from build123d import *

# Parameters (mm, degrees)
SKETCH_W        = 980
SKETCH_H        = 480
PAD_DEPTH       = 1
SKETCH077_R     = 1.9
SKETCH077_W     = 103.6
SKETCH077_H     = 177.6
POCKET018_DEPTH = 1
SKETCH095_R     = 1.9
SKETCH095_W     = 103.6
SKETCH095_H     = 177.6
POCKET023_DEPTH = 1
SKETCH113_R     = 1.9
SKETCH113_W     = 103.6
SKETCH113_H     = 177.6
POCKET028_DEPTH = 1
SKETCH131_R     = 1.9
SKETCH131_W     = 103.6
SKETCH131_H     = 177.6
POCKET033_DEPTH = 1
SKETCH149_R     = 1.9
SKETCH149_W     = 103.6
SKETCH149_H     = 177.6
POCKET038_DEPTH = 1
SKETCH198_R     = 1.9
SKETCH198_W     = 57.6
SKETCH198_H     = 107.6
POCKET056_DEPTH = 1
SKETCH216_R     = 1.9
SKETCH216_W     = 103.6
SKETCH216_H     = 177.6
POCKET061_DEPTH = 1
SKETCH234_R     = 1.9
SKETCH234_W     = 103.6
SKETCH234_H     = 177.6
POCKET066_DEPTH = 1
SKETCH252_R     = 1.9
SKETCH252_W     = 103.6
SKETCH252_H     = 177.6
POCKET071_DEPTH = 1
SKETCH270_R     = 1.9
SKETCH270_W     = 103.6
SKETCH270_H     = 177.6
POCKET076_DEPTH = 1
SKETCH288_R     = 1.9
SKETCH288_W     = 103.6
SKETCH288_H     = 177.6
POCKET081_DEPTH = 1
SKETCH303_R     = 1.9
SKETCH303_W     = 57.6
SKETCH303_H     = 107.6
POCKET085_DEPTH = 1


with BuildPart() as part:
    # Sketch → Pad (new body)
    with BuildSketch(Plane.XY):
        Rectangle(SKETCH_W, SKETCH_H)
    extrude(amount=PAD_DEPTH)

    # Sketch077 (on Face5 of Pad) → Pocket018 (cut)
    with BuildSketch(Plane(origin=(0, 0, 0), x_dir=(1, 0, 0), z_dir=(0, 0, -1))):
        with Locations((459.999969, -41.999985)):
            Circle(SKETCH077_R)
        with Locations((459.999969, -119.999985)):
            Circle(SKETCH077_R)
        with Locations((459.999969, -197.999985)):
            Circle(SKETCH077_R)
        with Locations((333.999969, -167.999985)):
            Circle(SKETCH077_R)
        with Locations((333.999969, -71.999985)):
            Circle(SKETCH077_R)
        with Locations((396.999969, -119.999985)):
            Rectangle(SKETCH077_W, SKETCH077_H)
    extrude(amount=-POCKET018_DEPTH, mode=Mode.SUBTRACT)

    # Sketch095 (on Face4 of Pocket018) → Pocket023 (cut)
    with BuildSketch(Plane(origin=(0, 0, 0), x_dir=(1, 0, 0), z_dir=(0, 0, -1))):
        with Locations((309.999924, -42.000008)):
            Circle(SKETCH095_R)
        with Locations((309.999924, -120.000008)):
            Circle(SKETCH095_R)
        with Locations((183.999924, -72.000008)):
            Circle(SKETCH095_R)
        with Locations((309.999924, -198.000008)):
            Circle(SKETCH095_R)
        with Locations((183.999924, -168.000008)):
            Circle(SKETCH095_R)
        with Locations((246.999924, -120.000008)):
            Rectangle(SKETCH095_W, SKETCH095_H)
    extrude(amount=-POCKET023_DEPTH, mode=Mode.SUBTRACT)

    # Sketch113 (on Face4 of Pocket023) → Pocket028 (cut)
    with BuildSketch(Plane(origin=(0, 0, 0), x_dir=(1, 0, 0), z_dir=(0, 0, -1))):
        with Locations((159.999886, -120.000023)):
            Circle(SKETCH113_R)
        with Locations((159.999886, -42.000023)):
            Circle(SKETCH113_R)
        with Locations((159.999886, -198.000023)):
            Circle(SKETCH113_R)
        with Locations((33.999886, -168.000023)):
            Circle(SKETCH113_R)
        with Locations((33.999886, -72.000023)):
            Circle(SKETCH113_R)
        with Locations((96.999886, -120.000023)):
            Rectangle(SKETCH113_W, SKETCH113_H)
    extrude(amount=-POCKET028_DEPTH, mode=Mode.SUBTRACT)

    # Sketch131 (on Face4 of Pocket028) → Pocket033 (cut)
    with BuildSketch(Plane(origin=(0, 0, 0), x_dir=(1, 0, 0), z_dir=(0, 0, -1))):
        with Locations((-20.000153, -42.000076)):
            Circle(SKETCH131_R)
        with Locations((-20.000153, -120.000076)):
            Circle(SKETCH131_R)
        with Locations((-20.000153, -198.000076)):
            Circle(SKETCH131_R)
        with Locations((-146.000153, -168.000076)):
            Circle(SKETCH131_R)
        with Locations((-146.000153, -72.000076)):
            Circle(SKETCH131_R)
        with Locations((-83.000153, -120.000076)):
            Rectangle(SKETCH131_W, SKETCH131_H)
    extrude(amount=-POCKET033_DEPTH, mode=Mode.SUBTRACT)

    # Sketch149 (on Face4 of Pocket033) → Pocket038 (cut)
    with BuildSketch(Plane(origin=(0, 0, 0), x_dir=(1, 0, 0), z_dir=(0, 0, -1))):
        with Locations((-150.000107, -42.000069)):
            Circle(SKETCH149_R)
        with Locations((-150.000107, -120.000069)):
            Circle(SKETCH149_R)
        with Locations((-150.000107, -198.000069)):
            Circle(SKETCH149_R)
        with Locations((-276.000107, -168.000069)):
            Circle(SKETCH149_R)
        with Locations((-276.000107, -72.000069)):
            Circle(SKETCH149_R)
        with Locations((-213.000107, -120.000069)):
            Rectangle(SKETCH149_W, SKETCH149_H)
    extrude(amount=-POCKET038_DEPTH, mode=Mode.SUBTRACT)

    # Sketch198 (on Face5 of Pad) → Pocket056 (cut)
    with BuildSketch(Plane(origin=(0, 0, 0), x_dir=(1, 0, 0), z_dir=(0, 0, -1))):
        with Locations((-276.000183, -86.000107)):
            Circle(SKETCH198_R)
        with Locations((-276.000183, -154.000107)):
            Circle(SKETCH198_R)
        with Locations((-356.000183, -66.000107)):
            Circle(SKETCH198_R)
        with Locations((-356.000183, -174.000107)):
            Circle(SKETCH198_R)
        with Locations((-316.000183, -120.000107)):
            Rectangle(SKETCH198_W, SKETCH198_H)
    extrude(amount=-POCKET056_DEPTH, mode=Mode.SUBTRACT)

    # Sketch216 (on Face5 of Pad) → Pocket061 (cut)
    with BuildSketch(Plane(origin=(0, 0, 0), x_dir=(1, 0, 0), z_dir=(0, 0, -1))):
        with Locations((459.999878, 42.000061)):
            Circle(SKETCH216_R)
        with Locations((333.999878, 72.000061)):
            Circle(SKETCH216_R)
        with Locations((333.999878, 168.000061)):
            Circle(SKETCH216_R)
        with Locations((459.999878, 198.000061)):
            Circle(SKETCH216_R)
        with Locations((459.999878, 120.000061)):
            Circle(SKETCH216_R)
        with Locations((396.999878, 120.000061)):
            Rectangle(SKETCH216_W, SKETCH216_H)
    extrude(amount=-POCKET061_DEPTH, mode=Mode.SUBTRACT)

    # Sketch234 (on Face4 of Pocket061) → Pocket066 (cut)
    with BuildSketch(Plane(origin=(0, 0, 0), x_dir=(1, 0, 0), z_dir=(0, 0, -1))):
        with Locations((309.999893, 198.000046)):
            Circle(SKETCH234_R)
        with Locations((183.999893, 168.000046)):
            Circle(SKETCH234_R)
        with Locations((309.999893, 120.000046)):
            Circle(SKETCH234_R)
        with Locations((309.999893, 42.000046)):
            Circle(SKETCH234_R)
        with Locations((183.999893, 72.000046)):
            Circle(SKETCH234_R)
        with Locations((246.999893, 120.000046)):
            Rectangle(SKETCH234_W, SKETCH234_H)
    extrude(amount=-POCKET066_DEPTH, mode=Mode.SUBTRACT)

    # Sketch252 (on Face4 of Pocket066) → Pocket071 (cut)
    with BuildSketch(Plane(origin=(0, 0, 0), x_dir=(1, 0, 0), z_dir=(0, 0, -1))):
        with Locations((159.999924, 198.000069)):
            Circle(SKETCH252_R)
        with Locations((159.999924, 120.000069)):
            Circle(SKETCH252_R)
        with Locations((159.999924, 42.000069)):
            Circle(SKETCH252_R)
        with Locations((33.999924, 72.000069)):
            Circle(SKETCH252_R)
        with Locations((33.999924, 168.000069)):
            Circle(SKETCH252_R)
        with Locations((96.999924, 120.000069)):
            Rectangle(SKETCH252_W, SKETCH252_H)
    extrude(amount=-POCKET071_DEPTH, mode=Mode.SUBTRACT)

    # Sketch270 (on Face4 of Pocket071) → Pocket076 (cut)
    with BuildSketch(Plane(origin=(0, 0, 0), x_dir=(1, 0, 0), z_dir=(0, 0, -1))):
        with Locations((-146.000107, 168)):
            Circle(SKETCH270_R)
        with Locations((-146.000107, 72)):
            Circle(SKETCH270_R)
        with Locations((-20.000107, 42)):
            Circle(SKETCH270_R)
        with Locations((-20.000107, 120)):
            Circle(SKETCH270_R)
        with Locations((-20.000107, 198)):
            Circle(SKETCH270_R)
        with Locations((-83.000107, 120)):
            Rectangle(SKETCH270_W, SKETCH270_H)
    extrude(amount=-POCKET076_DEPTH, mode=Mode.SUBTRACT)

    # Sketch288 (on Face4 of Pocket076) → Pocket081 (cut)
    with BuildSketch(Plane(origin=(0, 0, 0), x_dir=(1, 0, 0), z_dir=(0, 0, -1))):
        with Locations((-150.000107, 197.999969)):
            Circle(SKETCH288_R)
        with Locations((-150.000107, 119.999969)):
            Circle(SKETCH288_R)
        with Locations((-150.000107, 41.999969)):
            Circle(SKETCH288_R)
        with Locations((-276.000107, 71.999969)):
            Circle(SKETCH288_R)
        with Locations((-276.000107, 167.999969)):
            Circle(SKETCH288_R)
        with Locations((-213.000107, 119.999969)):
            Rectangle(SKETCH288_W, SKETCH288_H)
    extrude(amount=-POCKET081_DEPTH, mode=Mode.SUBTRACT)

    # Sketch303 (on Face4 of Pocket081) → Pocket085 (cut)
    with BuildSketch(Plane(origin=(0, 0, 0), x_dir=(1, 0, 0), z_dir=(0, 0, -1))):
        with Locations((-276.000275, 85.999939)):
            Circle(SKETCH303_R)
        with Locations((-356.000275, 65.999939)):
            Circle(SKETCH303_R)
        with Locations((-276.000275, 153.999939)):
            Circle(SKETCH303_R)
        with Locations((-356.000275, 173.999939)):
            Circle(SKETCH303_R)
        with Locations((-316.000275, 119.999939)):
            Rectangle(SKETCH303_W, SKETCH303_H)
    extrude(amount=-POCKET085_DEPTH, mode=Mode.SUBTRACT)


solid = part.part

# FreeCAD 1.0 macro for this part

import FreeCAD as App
import Part
import Sketcher
from FreeCAD import Vector
Q = App.Units.Quantity

doc = App.newDocument("Part")
params = doc.addObject("Spreadsheet::Sheet", "Params")
for row, (alias, value) in enumerate([
    ("sketch1_width", "980 mm"),
    ("sketch1_height", "480 mm"),
    ("pad1_length", "1 mm"),
    ("sketch2_diameter", "3.8 mm"),
    ("sketch2_width", "103.6 mm"),
    ("sketch2_height", "177.6 mm"),
    ("pocket1_length", "1 mm"),
    ("sketch3_diameter", "3.8 mm"),
    ("sketch3_width", "103.6 mm"),
    ("sketch3_height", "177.6 mm"),
    ("pocket2_length", "1 mm"),
    ("sketch4_diameter", "3.8 mm"),
    ("sketch4_width", "103.6 mm"),
    ("sketch4_height", "177.6 mm"),
    ("pocket3_length", "1 mm"),
    ("sketch5_diameter", "3.8 mm"),
    ("sketch5_width", "103.6 mm"),
    ("sketch5_height", "177.6 mm"),
    ("pocket4_length", "1 mm"),
    ("sketch6_diameter", "3.8 mm"),
    ("sketch6_width", "103.6 mm"),
    ("sketch6_height", "177.6 mm"),
    ("pocket5_length", "1 mm"),
    ("sketch7_diameter", "3.8 mm"),
    ("sketch7_width", "57.6 mm"),
    ("sketch7_height", "107.6 mm"),
    ("pocket6_length", "1 mm"),
    ("sketch8_diameter", "3.8 mm"),
    ("sketch8_width", "103.6 mm"),
    ("sketch8_height", "177.6 mm"),
    ("pocket7_length", "1 mm"),
    ("sketch9_diameter", "3.8 mm"),
    ("sketch9_width", "103.6 mm"),
    ("sketch9_height", "177.6 mm"),
    ("pocket8_length", "1 mm"),
    ("sketch10_diameter", "3.8 mm"),
    ("sketch10_width", "103.6 mm"),
    ("sketch10_height", "177.6 mm"),
    ("pocket9_length", "1 mm"),
    ("sketch11_diameter", "3.8 mm"),
    ("sketch11_width", "103.6 mm"),
    ("sketch11_height", "177.6 mm"),
    ("pocket10_length", "1 mm"),
    ("sketch12_diameter", "3.8 mm"),
    ("sketch12_width", "103.6 mm"),
    ("sketch12_height", "177.6 mm"),
    ("pocket11_length", "1 mm"),
    ("sketch13_diameter", "3.8 mm"),
    ("sketch13_width", "57.6 mm"),
    ("sketch13_height", "107.6 mm"),
    ("pocket12_length", "1 mm"),
], start=1):
    params.set(f"A{row}", alias)
    params.set(f"B{row}", "=" + value)
    params.setAlias(f"B{row}", alias)

body = doc.addObject("PartDesign::Body", "Body")

sketch1 = body.newObject("Sketcher::SketchObject", "Sketch")
sketch1.AttachmentSupport = (doc.getObject("XY_Plane"), [""])
sketch1.MapMode = "FlatFace"
sketch1.addGeometry(Part.LineSegment(Vector(-490, 240, 0), Vector(-490, -240, 0)), False)
sketch1.addGeometry(Part.LineSegment(Vector(-490, -240, 0), Vector(490, -240, 0)), False)
sketch1.addGeometry(Part.LineSegment(Vector(490, -240, 0), Vector(490, 240, 0)), False)
sketch1.addGeometry(Part.LineSegment(Vector(490, 240, 0), Vector(-490, 240, 0)), False)
sketch1.addConstraint(Sketcher.Constraint("Coincident", 0, 2, 1, 1))
sketch1.addConstraint(Sketcher.Constraint("Coincident", 1, 2, 2, 1))
sketch1.addConstraint(Sketcher.Constraint("Coincident", 2, 2, 3, 1))
sketch1.addConstraint(Sketcher.Constraint("Coincident", 3, 2, 0, 1))
sketch1.addConstraint(Sketcher.Constraint("Vertical", 0))
sketch1.addConstraint(Sketcher.Constraint("Horizontal", 1))
sketch1.addConstraint(Sketcher.Constraint("Vertical", 2))
sketch1.addConstraint(Sketcher.Constraint("Horizontal", 3))
sketch1.addConstraint(Sketcher.Constraint("Symmetric", 0, 2, 2, 2, -1, 1))
sketch1.addConstraint(Sketcher.Constraint("DistanceX", 1, 1, 1, 2, Q("980 mm")))
sketch1.addConstraint(Sketcher.Constraint("DistanceY", 0, 2, 0, 1, Q("480 mm")))
sketch1.setExpression("Constraints[9]", "Params.sketch1_width")
sketch1.setExpression("Constraints[10]", "Params.sketch1_height")
pad1 = body.newObject("PartDesign::Pad", "Pad")
pad1.Profile = sketch1
pad1.setExpression("Length", "Params.pad1_length")

sketch2 = body.newObject("Sketcher::SketchObject", "Sketch001")
sketch2.AttachmentSupport = (doc.getObject("XY_Plane"), [""])
sketch2.MapMode = "FlatFace"
sketch2.addGeometry(Part.Circle(Vector(459.999969, 41.999985, 0), Vector(0, 0, 1), 1.9), False)
sketch2.addGeometry(Part.Circle(Vector(459.999969, 119.999985, 0), Vector(0, 0, 1), 1.9), False)
sketch2.addGeometry(Part.Circle(Vector(459.999969, 197.999985, 0), Vector(0, 0, 1), 1.9), False)
sketch2.addGeometry(Part.Circle(Vector(333.999969, 167.999985, 0), Vector(0, 0, 1), 1.9), False)
sketch2.addGeometry(Part.Circle(Vector(333.999969, 71.999985, 0), Vector(0, 0, 1), 1.9), False)
sketch2.addGeometry(Part.LineSegment(Vector(345.199969, 31.199985, 0), Vector(345.199969, 208.799985, 0)), False)
sketch2.addGeometry(Part.LineSegment(Vector(345.199969, 208.799985, 0), Vector(448.799969, 208.799985, 0)), False)
sketch2.addGeometry(Part.LineSegment(Vector(448.799969, 208.799985, 0), Vector(448.799969, 31.199985, 0)), False)
sketch2.addGeometry(Part.LineSegment(Vector(448.799969, 31.199985, 0), Vector(345.199969, 31.199985, 0)), False)
sketch2.addConstraint(Sketcher.Constraint("Coincident", 5, 2, 6, 1))
sketch2.addConstraint(Sketcher.Constraint("Coincident", 6, 2, 7, 1))
sketch2.addConstraint(Sketcher.Constraint("Coincident", 7, 2, 8, 1))
sketch2.addConstraint(Sketcher.Constraint("Coincident", 8, 2, 5, 1))
sketch2.addConstraint(Sketcher.Constraint("Vertical", 5))
sketch2.addConstraint(Sketcher.Constraint("Horizontal", 6))
sketch2.addConstraint(Sketcher.Constraint("Vertical", 7))
sketch2.addConstraint(Sketcher.Constraint("Horizontal", 8))
sketch2.addConstraint(Sketcher.Constraint("Equal", 0, 1))
sketch2.addConstraint(Sketcher.Constraint("Equal", 1, 2))
sketch2.addConstraint(Sketcher.Constraint("Equal", 2, 3))
sketch2.addConstraint(Sketcher.Constraint("Equal", 3, 4))
sketch2.addConstraint(Sketcher.Constraint("Vertical", 0, 3, 1, 3))
sketch2.addConstraint(Sketcher.Constraint("Vertical", 1, 3, 2, 3))
sketch2.addConstraint(Sketcher.Constraint("Vertical", 3, 3, 4, 3))
sketch2.addConstraint(Sketcher.Constraint("Diameter", 0, Q("3.8 mm")))
sketch2.addConstraint(Sketcher.Constraint("DistanceX", 6, 1, 6, 2, Q("103.6 mm")))
sketch2.addConstraint(Sketcher.Constraint("DistanceY", 5, 1, 5, 2, Q("177.6 mm")))
sketch2.addConstraint(Sketcher.Constraint("DistanceY", 0, 3, 1, 3, Q("78 mm")))
sketch2.addConstraint(Sketcher.Constraint("DistanceY", 1, 3, 2, 3, Q("78 mm")))
sketch2.addConstraint(Sketcher.Constraint("DistanceX", 3, 3, 2, 3, Q("126 mm")))
sketch2.addConstraint(Sketcher.Constraint("DistanceY", 3, 3, 2, 3, Q("30 mm")))
sketch2.addConstraint(Sketcher.Constraint("DistanceY", 4, 3, 3, 3, Q("96 mm")))
sketch2.addConstraint(Sketcher.Constraint("DistanceX", 3, 3, 5, 2, Q("11.2 mm")))
sketch2.addConstraint(Sketcher.Constraint("DistanceY", 3, 3, 5, 2, Q("40.8 mm")))
sketch2.addConstraint(Sketcher.Constraint("DistanceX", -1, 1, 0, 3, Q("459.999969 mm")))
sketch2.addConstraint(Sketcher.Constraint("DistanceY", -1, 1, 0, 3, Q("41.999985 mm")))
sketch2.setExpression("Constraints[15]", "Params.sketch2_diameter")
sketch2.setExpression("Constraints[16]", "Params.sketch2_width")
sketch2.setExpression("Constraints[17]", "Params.sketch2_height")
pocket1 = body.newObject("PartDesign::Pocket", "Pocket")
pocket1.Profile = sketch2
pocket1.setExpression("Length", "Params.pocket1_length")
pocket1.Reversed = True

sketch3 = body.newObject("Sketcher::SketchObject", "Sketch002")
sketch3.AttachmentSupport = (doc.getObject("XY_Plane"), [""])
sketch3.MapMode = "FlatFace"
sketch3.addGeometry(Part.Circle(Vector(309.999924, 42.000008, 0), Vector(0, 0, 1), 1.9), False)
sketch3.addGeometry(Part.Circle(Vector(309.999924, 120.000008, 0), Vector(0, 0, 1), 1.9), False)
sketch3.addGeometry(Part.Circle(Vector(183.999924, 72.000008, 0), Vector(0, 0, 1), 1.9), False)
sketch3.addGeometry(Part.Circle(Vector(309.999924, 198.000008, 0), Vector(0, 0, 1), 1.9), False)
sketch3.addGeometry(Part.Circle(Vector(183.999924, 168.000008, 0), Vector(0, 0, 1), 1.9), False)
sketch3.addGeometry(Part.LineSegment(Vector(195.199924, 31.200008, 0), Vector(195.199924, 208.800008, 0)), False)
sketch3.addGeometry(Part.LineSegment(Vector(195.199924, 208.800008, 0), Vector(298.799924, 208.800008, 0)), False)
sketch3.addGeometry(Part.LineSegment(Vector(298.799924, 208.800008, 0), Vector(298.799924, 31.200008, 0)), False)
sketch3.addGeometry(Part.LineSegment(Vector(298.799924, 31.200008, 0), Vector(195.199924, 31.200008, 0)), False)
sketch3.addConstraint(Sketcher.Constraint("Coincident", 5, 2, 6, 1))
sketch3.addConstraint(Sketcher.Constraint("Coincident", 6, 2, 7, 1))
sketch3.addConstraint(Sketcher.Constraint("Coincident", 7, 2, 8, 1))
sketch3.addConstraint(Sketcher.Constraint("Coincident", 8, 2, 5, 1))
sketch3.addConstraint(Sketcher.Constraint("Vertical", 5))
sketch3.addConstraint(Sketcher.Constraint("Horizontal", 6))
sketch3.addConstraint(Sketcher.Constraint("Vertical", 7))
sketch3.addConstraint(Sketcher.Constraint("Horizontal", 8))
sketch3.addConstraint(Sketcher.Constraint("Equal", 0, 1))
sketch3.addConstraint(Sketcher.Constraint("Equal", 1, 2))
sketch3.addConstraint(Sketcher.Constraint("Equal", 2, 3))
sketch3.addConstraint(Sketcher.Constraint("Equal", 3, 4))
sketch3.addConstraint(Sketcher.Constraint("Vertical", 0, 3, 1, 3))
sketch3.addConstraint(Sketcher.Constraint("Vertical", 1, 3, 3, 3))
sketch3.addConstraint(Sketcher.Constraint("Vertical", 2, 3, 4, 3))
sketch3.addConstraint(Sketcher.Constraint("Diameter", 0, Q("3.8 mm")))
sketch3.addConstraint(Sketcher.Constraint("DistanceX", 6, 1, 6, 2, Q("103.6 mm")))
sketch3.addConstraint(Sketcher.Constraint("DistanceY", 5, 1, 5, 2, Q("177.6 mm")))
sketch3.addConstraint(Sketcher.Constraint("DistanceY", 0, 3, 1, 3, Q("78 mm")))
sketch3.addConstraint(Sketcher.Constraint("DistanceX", 2, 3, 0, 3, Q("126 mm")))
sketch3.addConstraint(Sketcher.Constraint("DistanceY", 0, 3, 2, 3, Q("30 mm")))
sketch3.addConstraint(Sketcher.Constraint("DistanceY", 1, 3, 3, 3, Q("78 mm")))
sketch3.addConstraint(Sketcher.Constraint("DistanceY", 2, 3, 4, 3, Q("96 mm")))
sketch3.addConstraint(Sketcher.Constraint("DistanceX", 4, 3, 5, 2, Q("11.2 mm")))
sketch3.addConstraint(Sketcher.Constraint("DistanceY", 4, 3, 5, 2, Q("40.8 mm")))
sketch3.addConstraint(Sketcher.Constraint("DistanceY", -1, 1, 3, 3, Q("198.000008 mm")))
sketch3.addConstraint(Sketcher.Constraint("DistanceX", -1, 1, 0, 3, Q("309.999924 mm")))
sketch3.setExpression("Constraints[15]", "Params.sketch3_diameter")
sketch3.setExpression("Constraints[16]", "Params.sketch3_width")
sketch3.setExpression("Constraints[17]", "Params.sketch3_height")
pocket2 = body.newObject("PartDesign::Pocket", "Pocket001")
pocket2.Profile = sketch3
pocket2.setExpression("Length", "Params.pocket2_length")
pocket2.Reversed = True

sketch4 = body.newObject("Sketcher::SketchObject", "Sketch003")
sketch4.AttachmentSupport = (doc.getObject("XY_Plane"), [""])
sketch4.MapMode = "FlatFace"
sketch4.addGeometry(Part.Circle(Vector(159.999886, 120.000023, 0), Vector(0, 0, 1), 1.9), False)
sketch4.addGeometry(Part.Circle(Vector(159.999886, 42.000023, 0), Vector(0, 0, 1), 1.9), False)
sketch4.addGeometry(Part.Circle(Vector(159.999886, 198.000023, 0), Vector(0, 0, 1), 1.9), False)
sketch4.addGeometry(Part.Circle(Vector(33.999886, 168.000023, 0), Vector(0, 0, 1), 1.9), False)
sketch4.addGeometry(Part.Circle(Vector(33.999886, 72.000023, 0), Vector(0, 0, 1), 1.9), False)
sketch4.addGeometry(Part.LineSegment(Vector(45.199886, 31.200023, 0), Vector(45.199886, 208.800023, 0)), False)
sketch4.addGeometry(Part.LineSegment(Vector(45.199886, 208.800023, 0), Vector(148.799886, 208.800023, 0)), False)
sketch4.addGeometry(Part.LineSegment(Vector(148.799886, 208.800023, 0), Vector(148.799886, 31.200023, 0)), False)
sketch4.addGeometry(Part.LineSegment(Vector(148.799886, 31.200023, 0), Vector(45.199886, 31.200023, 0)), False)
sketch4.addConstraint(Sketcher.Constraint("Coincident", 5, 2, 6, 1))
sketch4.addConstraint(Sketcher.Constraint("Coincident", 6, 2, 7, 1))
sketch4.addConstraint(Sketcher.Constraint("Coincident", 7, 2, 8, 1))
sketch4.addConstraint(Sketcher.Constraint("Coincident", 8, 2, 5, 1))
sketch4.addConstraint(Sketcher.Constraint("Vertical", 5))
sketch4.addConstraint(Sketcher.Constraint("Horizontal", 6))
sketch4.addConstraint(Sketcher.Constraint("Vertical", 7))
sketch4.addConstraint(Sketcher.Constraint("Horizontal", 8))
sketch4.addConstraint(Sketcher.Constraint("Equal", 0, 1))
sketch4.addConstraint(Sketcher.Constraint("Equal", 1, 2))
sketch4.addConstraint(Sketcher.Constraint("Equal", 2, 3))
sketch4.addConstraint(Sketcher.Constraint("Equal", 3, 4))
sketch4.addConstraint(Sketcher.Constraint("Vertical", 0, 3, 1, 3))
sketch4.addConstraint(Sketcher.Constraint("Vertical", 1, 3, 2, 3))
sketch4.addConstraint(Sketcher.Constraint("Vertical", 3, 3, 4, 3))
sketch4.addConstraint(Sketcher.Constraint("Diameter", 0, Q("3.8 mm")))
sketch4.addConstraint(Sketcher.Constraint("DistanceX", 6, 1, 6, 2, Q("103.6 mm")))
sketch4.addConstraint(Sketcher.Constraint("DistanceY", 5, 1, 5, 2, Q("177.6 mm")))
sketch4.addConstraint(Sketcher.Constraint("DistanceY", 1, 3, 0, 3, Q("78 mm")))
sketch4.addConstraint(Sketcher.Constraint("DistanceY", 0, 3, 2, 3, Q("78 mm")))
sketch4.addConstraint(Sketcher.Constraint("DistanceX", 3, 3, 2, 3, Q("126 mm")))
sketch4.addConstraint(Sketcher.Constraint("DistanceY", 3, 3, 2, 3, Q("30 mm")))
sketch4.addConstraint(Sketcher.Constraint("DistanceY", 4, 3, 3, 3, Q("96 mm")))
sketch4.addConstraint(Sketcher.Constraint("DistanceX", 3, 3, 5, 2, Q("11.2 mm")))
sketch4.addConstraint(Sketcher.Constraint("DistanceY", 3, 3, 5, 2, Q("40.8 mm")))
sketch4.addConstraint(Sketcher.Constraint("DistanceX", -1, 1, 0, 3, Q("159.999886 mm")))
sketch4.addConstraint(Sketcher.Constraint("DistanceY", -1, 1, 0, 3, Q("120.000023 mm")))
sketch4.setExpression("Constraints[15]", "Params.sketch4_diameter")
sketch4.setExpression("Constraints[16]", "Params.sketch4_width")
sketch4.setExpression("Constraints[17]", "Params.sketch4_height")
pocket3 = body.newObject("PartDesign::Pocket", "Pocket002")
pocket3.Profile = sketch4
pocket3.setExpression("Length", "Params.pocket3_length")
pocket3.Reversed = True

sketch5 = body.newObject("Sketcher::SketchObject", "Sketch004")
sketch5.AttachmentSupport = (doc.getObject("XY_Plane"), [""])
sketch5.MapMode = "FlatFace"
sketch5.addGeometry(Part.Circle(Vector(-20, 42, 0), Vector(0, 0, 1), 1.9), False)
sketch5.addGeometry(Part.Circle(Vector(-20, 120, 0), Vector(0, 0, 1), 1.9), False)
sketch5.addGeometry(Part.Circle(Vector(-20, 198, 0), Vector(0, 0, 1), 1.9), False)
sketch5.addGeometry(Part.Circle(Vector(-146, 168, 0), Vector(0, 0, 1), 1.9), False)
sketch5.addGeometry(Part.Circle(Vector(-146, 72, 0), Vector(0, 0, 1), 1.9), False)
sketch5.addGeometry(Part.LineSegment(Vector(-134.8, 31.2, 0), Vector(-134.8, 208.8, 0)), False)
sketch5.addGeometry(Part.LineSegment(Vector(-134.8, 208.8, 0), Vector(-31.2, 208.8, 0)), False)
sketch5.addGeometry(Part.LineSegment(Vector(-31.2, 208.8, 0), Vector(-31.2, 31.2, 0)), False)
sketch5.addGeometry(Part.LineSegment(Vector(-31.2, 31.2, 0), Vector(-134.8, 31.2, 0)), False)
sketch5.addConstraint(Sketcher.Constraint("Coincident", 5, 2, 6, 1))
sketch5.addConstraint(Sketcher.Constraint("Coincident", 6, 2, 7, 1))
sketch5.addConstraint(Sketcher.Constraint("Coincident", 7, 2, 8, 1))
sketch5.addConstraint(Sketcher.Constraint("Coincident", 8, 2, 5, 1))
sketch5.addConstraint(Sketcher.Constraint("Vertical", 5))
sketch5.addConstraint(Sketcher.Constraint("Horizontal", 6))
sketch5.addConstraint(Sketcher.Constraint("Vertical", 7))
sketch5.addConstraint(Sketcher.Constraint("Horizontal", 8))
sketch5.addConstraint(Sketcher.Constraint("Equal", 0, 1))
sketch5.addConstraint(Sketcher.Constraint("Equal", 1, 2))
sketch5.addConstraint(Sketcher.Constraint("Equal", 2, 3))
sketch5.addConstraint(Sketcher.Constraint("Equal", 3, 4))
sketch5.addConstraint(Sketcher.Constraint("Vertical", 0, 3, 1, 3))
sketch5.addConstraint(Sketcher.Constraint("Vertical", 1, 3, 2, 3))
sketch5.addConstraint(Sketcher.Constraint("Vertical", 3, 3, 4, 3))
sketch5.addConstraint(Sketcher.Constraint("Diameter", 0, Q("3.8 mm")))
sketch5.addConstraint(Sketcher.Constraint("DistanceX", 6, 1, 6, 2, Q("103.6 mm")))
sketch5.addConstraint(Sketcher.Constraint("DistanceY", 5, 1, 5, 2, Q("177.6 mm")))
sketch5.addConstraint(Sketcher.Constraint("DistanceY", 0, 3, 1, 3, Q("78 mm")))
sketch5.addConstraint(Sketcher.Constraint("DistanceY", 1, 3, 2, 3, Q("78 mm")))
sketch5.addConstraint(Sketcher.Constraint("DistanceX", 3, 3, 2, 3, Q("126 mm")))
sketch5.addConstraint(Sketcher.Constraint("DistanceY", 3, 3, 2, 3, Q("30 mm")))
sketch5.addConstraint(Sketcher.Constraint("DistanceY", 4, 3, 3, 3, Q("96 mm")))
sketch5.addConstraint(Sketcher.Constraint("DistanceX", 3, 3, 5, 2, Q("11.2 mm")))
sketch5.addConstraint(Sketcher.Constraint("DistanceY", 3, 3, 5, 2, Q("40.8 mm")))
sketch5.addConstraint(Sketcher.Constraint("DistanceX", 0, 3, -1, 1, Q("20.000153 mm")))
sketch5.addConstraint(Sketcher.Constraint("DistanceY", -1, 1, 0, 3, Q("42.000076 mm")))
sketch5.setExpression("Constraints[15]", "Params.sketch5_diameter")
sketch5.setExpression("Constraints[16]", "Params.sketch5_width")
sketch5.setExpression("Constraints[17]", "Params.sketch5_height")
pocket4 = body.newObject("PartDesign::Pocket", "Pocket003")
pocket4.Profile = sketch5
pocket4.setExpression("Length", "Params.pocket4_length")
pocket4.Reversed = True

sketch6 = body.newObject("Sketcher::SketchObject", "Sketch005")
sketch6.AttachmentSupport = (doc.getObject("XY_Plane"), [""])
sketch6.MapMode = "FlatFace"
sketch6.addGeometry(Part.Circle(Vector(-150.000107, 42.000069, 0), Vector(0, 0, 1), 1.9), False)
sketch6.addGeometry(Part.Circle(Vector(-150.000107, 120.000069, 0), Vector(0, 0, 1), 1.9), False)
sketch6.addGeometry(Part.Circle(Vector(-150.000107, 198.000069, 0), Vector(0, 0, 1), 1.9), False)
sketch6.addGeometry(Part.Circle(Vector(-276.000107, 168.000069, 0), Vector(0, 0, 1), 1.9), False)
sketch6.addGeometry(Part.Circle(Vector(-276.000107, 72.000069, 0), Vector(0, 0, 1), 1.9), False)
sketch6.addGeometry(Part.LineSegment(Vector(-264.800107, 31.200069, 0), Vector(-264.800107, 208.800069, 0)), False)
sketch6.addGeometry(Part.LineSegment(Vector(-264.800107, 208.800069, 0), Vector(-161.200107, 208.800069, 0)), False)
sketch6.addGeometry(Part.LineSegment(Vector(-161.200107, 208.800069, 0), Vector(-161.200107, 31.200069, 0)), False)
sketch6.addGeometry(Part.LineSegment(Vector(-161.200107, 31.200069, 0), Vector(-264.800107, 31.200069, 0)), False)
sketch6.addConstraint(Sketcher.Constraint("Coincident", 5, 2, 6, 1))
sketch6.addConstraint(Sketcher.Constraint("Coincident", 6, 2, 7, 1))
sketch6.addConstraint(Sketcher.Constraint("Coincident", 7, 2, 8, 1))
sketch6.addConstraint(Sketcher.Constraint("Coincident", 8, 2, 5, 1))
sketch6.addConstraint(Sketcher.Constraint("Vertical", 5))
sketch6.addConstraint(Sketcher.Constraint("Horizontal", 6))
sketch6.addConstraint(Sketcher.Constraint("Vertical", 7))
sketch6.addConstraint(Sketcher.Constraint("Horizontal", 8))
sketch6.addConstraint(Sketcher.Constraint("Equal", 0, 1))
sketch6.addConstraint(Sketcher.Constraint("Equal", 1, 2))
sketch6.addConstraint(Sketcher.Constraint("Equal", 2, 3))
sketch6.addConstraint(Sketcher.Constraint("Equal", 3, 4))
sketch6.addConstraint(Sketcher.Constraint("Vertical", 0, 3, 1, 3))
sketch6.addConstraint(Sketcher.Constraint("Vertical", 1, 3, 2, 3))
sketch6.addConstraint(Sketcher.Constraint("Vertical", 3, 3, 4, 3))
sketch6.addConstraint(Sketcher.Constraint("Diameter", 0, Q("3.8 mm")))
sketch6.addConstraint(Sketcher.Constraint("DistanceX", 6, 1, 6, 2, Q("103.6 mm")))
sketch6.addConstraint(Sketcher.Constraint("DistanceY", 5, 1, 5, 2, Q("177.6 mm")))
sketch6.addConstraint(Sketcher.Constraint("DistanceY", 0, 3, 1, 3, Q("78 mm")))
sketch6.addConstraint(Sketcher.Constraint("DistanceY", 1, 3, 2, 3, Q("78 mm")))
sketch6.addConstraint(Sketcher.Constraint("DistanceX", 3, 3, 2, 3, Q("126 mm")))
sketch6.addConstraint(Sketcher.Constraint("DistanceY", 3, 3, 2, 3, Q("30 mm")))
sketch6.addConstraint(Sketcher.Constraint("DistanceY", 4, 3, 3, 3, Q("96 mm")))
sketch6.addConstraint(Sketcher.Constraint("DistanceX", 3, 3, 5, 2, Q("11.2 mm")))
sketch6.addConstraint(Sketcher.Constraint("DistanceY", 3, 3, 5, 2, Q("40.8 mm")))
sketch6.addConstraint(Sketcher.Constraint("DistanceY", -1, 1, 0, 3, Q("42.000069 mm")))
sketch6.addConstraint(Sketcher.Constraint("DistanceX", 0, 3, -1, 1, Q("150.000107 mm")))
sketch6.setExpression("Constraints[15]", "Params.sketch6_diameter")
sketch6.setExpression("Constraints[16]", "Params.sketch6_width")
sketch6.setExpression("Constraints[17]", "Params.sketch6_height")
pocket5 = body.newObject("PartDesign::Pocket", "Pocket004")
pocket5.Profile = sketch6
pocket5.setExpression("Length", "Params.pocket5_length")
pocket5.Reversed = True

sketch7 = body.newObject("Sketcher::SketchObject", "Sketch006")
sketch7.AttachmentSupport = (doc.getObject("XY_Plane"), [""])
sketch7.MapMode = "FlatFace"
sketch7.addGeometry(Part.Circle(Vector(-276, 86, 0), Vector(0, 0, 1), 1.9), False)
sketch7.addGeometry(Part.Circle(Vector(-276, 154, 0), Vector(0, 0, 1), 1.9), False)
sketch7.addGeometry(Part.Circle(Vector(-356, 66, 0), Vector(0, 0, 1), 1.9), False)
sketch7.addGeometry(Part.Circle(Vector(-356, 174, 0), Vector(0, 0, 1), 1.9), False)
sketch7.addGeometry(Part.LineSegment(Vector(-344.8, 66.2, 0), Vector(-344.8, 173.8, 0)), False)
sketch7.addGeometry(Part.LineSegment(Vector(-344.8, 173.8, 0), Vector(-287.2, 173.8, 0)), False)
sketch7.addGeometry(Part.LineSegment(Vector(-287.2, 173.8, 0), Vector(-287.2, 66.2, 0)), False)
sketch7.addGeometry(Part.LineSegment(Vector(-287.2, 66.2, 0), Vector(-344.8, 66.2, 0)), False)
sketch7.addConstraint(Sketcher.Constraint("Coincident", 4, 2, 5, 1))
sketch7.addConstraint(Sketcher.Constraint("Coincident", 5, 2, 6, 1))
sketch7.addConstraint(Sketcher.Constraint("Coincident", 6, 2, 7, 1))
sketch7.addConstraint(Sketcher.Constraint("Coincident", 7, 2, 4, 1))
sketch7.addConstraint(Sketcher.Constraint("Vertical", 4))
sketch7.addConstraint(Sketcher.Constraint("Horizontal", 5))
sketch7.addConstraint(Sketcher.Constraint("Vertical", 6))
sketch7.addConstraint(Sketcher.Constraint("Horizontal", 7))
sketch7.addConstraint(Sketcher.Constraint("Equal", 0, 1))
sketch7.addConstraint(Sketcher.Constraint("Equal", 1, 2))
sketch7.addConstraint(Sketcher.Constraint("Equal", 2, 3))
sketch7.addConstraint(Sketcher.Constraint("Vertical", 0, 3, 1, 3))
sketch7.addConstraint(Sketcher.Constraint("Vertical", 2, 3, 3, 3))
sketch7.addConstraint(Sketcher.Constraint("Diameter", 0, Q("3.8 mm")))
sketch7.addConstraint(Sketcher.Constraint("DistanceX", 5, 1, 5, 2, Q("57.6 mm")))
sketch7.addConstraint(Sketcher.Constraint("DistanceY", 4, 1, 4, 2, Q("107.6 mm")))
sketch7.addConstraint(Sketcher.Constraint("DistanceY", 0, 3, 1, 3, Q("68 mm")))
sketch7.addConstraint(Sketcher.Constraint("DistanceX", 2, 3, 0, 3, Q("80 mm")))
sketch7.addConstraint(Sketcher.Constraint("DistanceY", 2, 3, 0, 3, Q("20 mm")))
sketch7.addConstraint(Sketcher.Constraint("DistanceY", 1, 3, 3, 3, Q("20 mm")))
sketch7.addConstraint(Sketcher.Constraint("DistanceX", 3, 3, 4, 2, Q("11.2 mm")))
sketch7.addConstraint(Sketcher.Constraint("DistanceY", 4, 2, 3, 3, Q("0.2 mm")))
sketch7.addConstraint(Sketcher.Constraint("DistanceX", 0, 3, -1, 1, Q("276.000183 mm")))
sketch7.addConstraint(Sketcher.Constraint("DistanceY", -1, 1, 0, 3, Q("86.000107 mm")))
sketch7.setExpression("Constraints[13]", "Params.sketch7_diameter")
sketch7.setExpression("Constraints[14]", "Params.sketch7_width")
sketch7.setExpression("Constraints[15]", "Params.sketch7_height")
pocket6 = body.newObject("PartDesign::Pocket", "Pocket005")
pocket6.Profile = sketch7
pocket6.setExpression("Length", "Params.pocket6_length")
pocket6.Reversed = True

sketch8 = body.newObject("Sketcher::SketchObject", "Sketch007")
sketch8.AttachmentSupport = (doc.getObject("XY_Plane"), [""])
sketch8.MapMode = "FlatFace"
sketch8.addGeometry(Part.Circle(Vector(460, -42, 0), Vector(0, 0, 1), 1.9), False)
sketch8.addGeometry(Part.Circle(Vector(334, -72, 0), Vector(0, 0, 1), 1.9), False)
sketch8.addGeometry(Part.Circle(Vector(334, -168, 0), Vector(0, 0, 1), 1.9), False)
sketch8.addGeometry(Part.Circle(Vector(460, -198, 0), Vector(0, 0, 1), 1.9), False)
sketch8.addGeometry(Part.Circle(Vector(460, -120, 0), Vector(0, 0, 1), 1.9), False)
sketch8.addGeometry(Part.LineSegment(Vector(345.2, -208.8, 0), Vector(345.2, -31.2, 0)), False)
sketch8.addGeometry(Part.LineSegment(Vector(345.2, -31.2, 0), Vector(448.8, -31.2, 0)), False)
sketch8.addGeometry(Part.LineSegment(Vector(448.8, -31.2, 0), Vector(448.8, -208.8, 0)), False)
sketch8.addGeometry(Part.LineSegment(Vector(448.8, -208.8, 0), Vector(345.2, -208.8, 0)), False)
sketch8.addConstraint(Sketcher.Constraint("Coincident", 5, 2, 6, 1))
sketch8.addConstraint(Sketcher.Constraint("Coincident", 6, 2, 7, 1))
sketch8.addConstraint(Sketcher.Constraint("Coincident", 7, 2, 8, 1))
sketch8.addConstraint(Sketcher.Constraint("Coincident", 8, 2, 5, 1))
sketch8.addConstraint(Sketcher.Constraint("Vertical", 5))
sketch8.addConstraint(Sketcher.Constraint("Horizontal", 6))
sketch8.addConstraint(Sketcher.Constraint("Vertical", 7))
sketch8.addConstraint(Sketcher.Constraint("Horizontal", 8))
sketch8.addConstraint(Sketcher.Constraint("Equal", 0, 1))
sketch8.addConstraint(Sketcher.Constraint("Equal", 1, 2))
sketch8.addConstraint(Sketcher.Constraint("Equal", 2, 3))
sketch8.addConstraint(Sketcher.Constraint("Equal", 3, 4))
sketch8.addConstraint(Sketcher.Constraint("Vertical", 1, 3, 2, 3))
sketch8.addConstraint(Sketcher.Constraint("Vertical", 0, 3, 3, 3))
sketch8.addConstraint(Sketcher.Constraint("Vertical", 3, 3, 4, 3))
sketch8.addConstraint(Sketcher.Constraint("Diameter", 0, Q("3.8 mm")))
sketch8.addConstraint(Sketcher.Constraint("DistanceX", 6, 1, 6, 2, Q("103.6 mm")))
sketch8.addConstraint(Sketcher.Constraint("DistanceY", 5, 1, 5, 2, Q("177.6 mm")))
sketch8.addConstraint(Sketcher.Constraint("DistanceX", 1, 3, 0, 3, Q("126 mm")))
sketch8.addConstraint(Sketcher.Constraint("DistanceY", 1, 3, 0, 3, Q("30 mm")))
sketch8.addConstraint(Sketcher.Constraint("DistanceY", 2, 3, 1, 3, Q("96 mm")))
sketch8.addConstraint(Sketcher.Constraint("DistanceY", 3, 3, 2, 3, Q("30 mm")))
sketch8.addConstraint(Sketcher.Constraint("DistanceY", 3, 3, 4, 3, Q("78 mm")))
sketch8.addConstraint(Sketcher.Constraint("DistanceX", 1, 3, 5, 2, Q("11.2 mm")))
sketch8.addConstraint(Sketcher.Constraint("DistanceY", 1, 3, 5, 2, Q("40.8 mm")))
sketch8.addConstraint(Sketcher.Constraint("DistanceX", -1, 1, 0, 3, Q("459.999878 mm")))
sketch8.addConstraint(Sketcher.Constraint("DistanceY", 0, 3, -1, 1, Q("42.000061 mm")))
sketch8.setExpression("Constraints[15]", "Params.sketch8_diameter")
sketch8.setExpression("Constraints[16]", "Params.sketch8_width")
sketch8.setExpression("Constraints[17]", "Params.sketch8_height")
pocket7 = body.newObject("PartDesign::Pocket", "Pocket006")
pocket7.Profile = sketch8
pocket7.setExpression("Length", "Params.pocket7_length")
pocket7.Reversed = True

sketch9 = body.newObject("Sketcher::SketchObject", "Sketch008")
sketch9.AttachmentSupport = (doc.getObject("XY_Plane"), [""])
sketch9.MapMode = "FlatFace"
sketch9.addGeometry(Part.Circle(Vector(309.999893, -198.000046, 0), Vector(0, 0, 1), 1.9), False)
sketch9.addGeometry(Part.Circle(Vector(183.999893, -168.000046, 0), Vector(0, 0, 1), 1.9), False)
sketch9.addGeometry(Part.Circle(Vector(309.999893, -120.000046, 0), Vector(0, 0, 1), 1.9), False)
sketch9.addGeometry(Part.Circle(Vector(309.999893, -42.000046, 0), Vector(0, 0, 1), 1.9), False)
sketch9.addGeometry(Part.Circle(Vector(183.999893, -72.000046, 0), Vector(0, 0, 1), 1.9), False)
sketch9.addGeometry(Part.LineSegment(Vector(195.199893, -208.800046, 0), Vector(195.199893, -31.200046, 0)), False)
sketch9.addGeometry(Part.LineSegment(Vector(195.199893, -31.200046, 0), Vector(298.799893, -31.200046, 0)), False)
sketch9.addGeometry(Part.LineSegment(Vector(298.799893, -31.200046, 0), Vector(298.799893, -208.800046, 0)), False)
sketch9.addGeometry(Part.LineSegment(Vector(298.799893, -208.800046, 0), Vector(195.199893, -208.800046, 0)), False)
sketch9.addConstraint(Sketcher.Constraint("Coincident", 5, 2, 6, 1))
sketch9.addConstraint(Sketcher.Constraint("Coincident", 6, 2, 7, 1))
sketch9.addConstraint(Sketcher.Constraint("Coincident", 7, 2, 8, 1))
sketch9.addConstraint(Sketcher.Constraint("Coincident", 8, 2, 5, 1))
sketch9.addConstraint(Sketcher.Constraint("Vertical", 5))
sketch9.addConstraint(Sketcher.Constraint("Horizontal", 6))
sketch9.addConstraint(Sketcher.Constraint("Vertical", 7))
sketch9.addConstraint(Sketcher.Constraint("Horizontal", 8))
sketch9.addConstraint(Sketcher.Constraint("Equal", 0, 1))
sketch9.addConstraint(Sketcher.Constraint("Equal", 1, 2))
sketch9.addConstraint(Sketcher.Constraint("Equal", 2, 3))
sketch9.addConstraint(Sketcher.Constraint("Equal", 3, 4))
sketch9.addConstraint(Sketcher.Constraint("Vertical", 0, 3, 2, 3))
sketch9.addConstraint(Sketcher.Constraint("Vertical", 2, 3, 3, 3))
sketch9.addConstraint(Sketcher.Constraint("Vertical", 1, 3, 4, 3))
sketch9.addConstraint(Sketcher.Constraint("Diameter", 0, Q("3.8 mm")))
sketch9.addConstraint(Sketcher.Constraint("DistanceX", 6, 1, 6, 2, Q("103.6 mm")))
sketch9.addConstraint(Sketcher.Constraint("DistanceY", 5, 1, 5, 2, Q("177.6 mm")))
sketch9.addConstraint(Sketcher.Constraint("DistanceX", 1, 3, 0, 3, Q("126 mm")))
sketch9.addConstraint(Sketcher.Constraint("DistanceY", 0, 3, 1, 3, Q("30 mm")))
sketch9.addConstraint(Sketcher.Constraint("DistanceY", 0, 3, 2, 3, Q("78 mm")))
sketch9.addConstraint(Sketcher.Constraint("DistanceY", 2, 3, 3, 3, Q("78 mm")))
sketch9.addConstraint(Sketcher.Constraint("DistanceY", 1, 3, 4, 3, Q("96 mm")))
sketch9.addConstraint(Sketcher.Constraint("DistanceX", 4, 3, 5, 2, Q("11.2 mm")))
sketch9.addConstraint(Sketcher.Constraint("DistanceY", 4, 3, 5, 2, Q("40.8 mm")))
sketch9.addConstraint(Sketcher.Constraint("DistanceX", -1, 1, 0, 3, Q("309.999893 mm")))
sketch9.addConstraint(Sketcher.Constraint("DistanceY", 0, 3, -1, 1, Q("198.000046 mm")))
sketch9.setExpression("Constraints[15]", "Params.sketch9_diameter")
sketch9.setExpression("Constraints[16]", "Params.sketch9_width")
sketch9.setExpression("Constraints[17]", "Params.sketch9_height")
pocket8 = body.newObject("PartDesign::Pocket", "Pocket007")
pocket8.Profile = sketch9
pocket8.setExpression("Length", "Params.pocket8_length")
pocket8.Reversed = True

sketch10 = body.newObject("Sketcher::SketchObject", "Sketch009")
sketch10.AttachmentSupport = (doc.getObject("XY_Plane"), [""])
sketch10.MapMode = "FlatFace"
sketch10.addGeometry(Part.Circle(Vector(160, -198, 0), Vector(0, 0, 1), 1.9), False)
sketch10.addGeometry(Part.Circle(Vector(160, -120, 0), Vector(0, 0, 1), 1.9), False)
sketch10.addGeometry(Part.Circle(Vector(160, -42, 0), Vector(0, 0, 1), 1.9), False)
sketch10.addGeometry(Part.Circle(Vector(34, -72, 0), Vector(0, 0, 1), 1.9), False)
sketch10.addGeometry(Part.Circle(Vector(34, -168, 0), Vector(0, 0, 1), 1.9), False)
sketch10.addGeometry(Part.LineSegment(Vector(45.2, -208.8, 0), Vector(45.2, -31.2, 0)), False)
sketch10.addGeometry(Part.LineSegment(Vector(45.2, -31.2, 0), Vector(148.8, -31.2, 0)), False)
sketch10.addGeometry(Part.LineSegment(Vector(148.8, -31.2, 0), Vector(148.8, -208.8, 0)), False)
sketch10.addGeometry(Part.LineSegment(Vector(148.8, -208.8, 0), Vector(45.2, -208.8, 0)), False)
sketch10.addConstraint(Sketcher.Constraint("Coincident", 5, 2, 6, 1))
sketch10.addConstraint(Sketcher.Constraint("Coincident", 6, 2, 7, 1))
sketch10.addConstraint(Sketcher.Constraint("Coincident", 7, 2, 8, 1))
sketch10.addConstraint(Sketcher.Constraint("Coincident", 8, 2, 5, 1))
sketch10.addConstraint(Sketcher.Constraint("Vertical", 5))
sketch10.addConstraint(Sketcher.Constraint("Horizontal", 6))
sketch10.addConstraint(Sketcher.Constraint("Vertical", 7))
sketch10.addConstraint(Sketcher.Constraint("Horizontal", 8))
sketch10.addConstraint(Sketcher.Constraint("Equal", 0, 1))
sketch10.addConstraint(Sketcher.Constraint("Equal", 1, 2))
sketch10.addConstraint(Sketcher.Constraint("Equal", 2, 3))
sketch10.addConstraint(Sketcher.Constraint("Equal", 3, 4))
sketch10.addConstraint(Sketcher.Constraint("Vertical", 0, 3, 1, 3))
sketch10.addConstraint(Sketcher.Constraint("Vertical", 1, 3, 2, 3))
sketch10.addConstraint(Sketcher.Constraint("Vertical", 3, 3, 4, 3))
sketch10.addConstraint(Sketcher.Constraint("Diameter", 0, Q("3.8 mm")))
sketch10.addConstraint(Sketcher.Constraint("DistanceX", 6, 1, 6, 2, Q("103.6 mm")))
sketch10.addConstraint(Sketcher.Constraint("DistanceY", 5, 1, 5, 2, Q("177.6 mm")))
sketch10.addConstraint(Sketcher.Constraint("DistanceY", 0, 3, 1, 3, Q("78 mm")))
sketch10.addConstraint(Sketcher.Constraint("DistanceY", 1, 3, 2, 3, Q("78 mm")))
sketch10.addConstraint(Sketcher.Constraint("DistanceX", 3, 3, 2, 3, Q("126 mm")))
sketch10.addConstraint(Sketcher.Constraint("DistanceY", 3, 3, 2, 3, Q("30 mm")))
sketch10.addConstraint(Sketcher.Constraint("DistanceY", 4, 3, 3, 3, Q("96 mm")))
sketch10.addConstraint(Sketcher.Constraint("DistanceX", 3, 3, 5, 2, Q("11.2 mm")))
sketch10.addConstraint(Sketcher.Constraint("DistanceY", 3, 3, 5, 2, Q("40.8 mm")))
sketch10.addConstraint(Sketcher.Constraint("DistanceY", 0, 3, -1, 1, Q("198.000069 mm")))
sketch10.addConstraint(Sketcher.Constraint("DistanceX", -1, 1, 0, 3, Q("159.999924 mm")))
sketch10.setExpression("Constraints[15]", "Params.sketch10_diameter")
sketch10.setExpression("Constraints[16]", "Params.sketch10_width")
sketch10.setExpression("Constraints[17]", "Params.sketch10_height")
pocket9 = body.newObject("PartDesign::Pocket", "Pocket008")
pocket9.Profile = sketch10
pocket9.setExpression("Length", "Params.pocket9_length")
pocket9.Reversed = True

sketch11 = body.newObject("Sketcher::SketchObject", "Sketch010")
sketch11.AttachmentSupport = (doc.getObject("XY_Plane"), [""])
sketch11.MapMode = "FlatFace"
sketch11.addGeometry(Part.Circle(Vector(-146, -168, 0), Vector(0, 0, 1), 1.9), False)
sketch11.addGeometry(Part.Circle(Vector(-146, -72, 0), Vector(0, 0, 1), 1.9), False)
sketch11.addGeometry(Part.Circle(Vector(-20, -42, 0), Vector(0, 0, 1), 1.9), False)
sketch11.addGeometry(Part.Circle(Vector(-20, -120, 0), Vector(0, 0, 1), 1.9), False)
sketch11.addGeometry(Part.Circle(Vector(-20, -198, 0), Vector(0, 0, 1), 1.9), False)
sketch11.addGeometry(Part.LineSegment(Vector(-134.8, -208.8, 0), Vector(-134.8, -31.2, 0)), False)
sketch11.addGeometry(Part.LineSegment(Vector(-134.8, -31.2, 0), Vector(-31.2, -31.2, 0)), False)
sketch11.addGeometry(Part.LineSegment(Vector(-31.2, -31.2, 0), Vector(-31.2, -208.8, 0)), False)
sketch11.addGeometry(Part.LineSegment(Vector(-31.2, -208.8, 0), Vector(-134.8, -208.8, 0)), False)
sketch11.addConstraint(Sketcher.Constraint("Coincident", 5, 2, 6, 1))
sketch11.addConstraint(Sketcher.Constraint("Coincident", 6, 2, 7, 1))
sketch11.addConstraint(Sketcher.Constraint("Coincident", 7, 2, 8, 1))
sketch11.addConstraint(Sketcher.Constraint("Coincident", 8, 2, 5, 1))
sketch11.addConstraint(Sketcher.Constraint("Vertical", 5))
sketch11.addConstraint(Sketcher.Constraint("Horizontal", 6))
sketch11.addConstraint(Sketcher.Constraint("Vertical", 7))
sketch11.addConstraint(Sketcher.Constraint("Horizontal", 8))
sketch11.addConstraint(Sketcher.Constraint("Equal", 0, 1))
sketch11.addConstraint(Sketcher.Constraint("Equal", 1, 2))
sketch11.addConstraint(Sketcher.Constraint("Equal", 2, 3))
sketch11.addConstraint(Sketcher.Constraint("Equal", 3, 4))
sketch11.addConstraint(Sketcher.Constraint("Vertical", 0, 3, 1, 3))
sketch11.addConstraint(Sketcher.Constraint("Vertical", 2, 3, 3, 3))
sketch11.addConstraint(Sketcher.Constraint("Vertical", 3, 3, 4, 3))
sketch11.addConstraint(Sketcher.Constraint("Diameter", 0, Q("3.8 mm")))
sketch11.addConstraint(Sketcher.Constraint("DistanceX", 6, 1, 6, 2, Q("103.6 mm")))
sketch11.addConstraint(Sketcher.Constraint("DistanceY", 5, 1, 5, 2, Q("177.6 mm")))
sketch11.addConstraint(Sketcher.Constraint("DistanceY", 0, 3, -1, 1, Q("168 mm")))
sketch11.addConstraint(Sketcher.Constraint("DistanceY", 1, 3, -1, 1, Q("72 mm")))
sketch11.addConstraint(Sketcher.Constraint("DistanceY", 2, 3, -1, 1, Q("42 mm")))
sketch11.addConstraint(Sketcher.Constraint("DistanceY", 3, 3, -1, 1, Q("120 mm")))
sketch11.addConstraint(Sketcher.Constraint("DistanceY", 4, 3, -1, 1, Q("198 mm")))
sketch11.addConstraint(Sketcher.Constraint("DistanceX", 1, 3, 2, 3, Q("126 mm")))
sketch11.addConstraint(Sketcher.Constraint("DistanceY", 5, 2, -1, 1, Q("31.2 mm")))
sketch11.addConstraint(Sketcher.Constraint("DistanceX", 1, 3, 5, 2, Q("11.2 mm")))
sketch11.addConstraint(Sketcher.Constraint("DistanceX", 0, 3, -1, 1, Q("146.000107 mm")))
sketch11.setExpression("Constraints[15]", "Params.sketch11_diameter")
sketch11.setExpression("Constraints[16]", "Params.sketch11_width")
sketch11.setExpression("Constraints[17]", "Params.sketch11_height")
pocket10 = body.newObject("PartDesign::Pocket", "Pocket009")
pocket10.Profile = sketch11
pocket10.setExpression("Length", "Params.pocket10_length")
pocket10.Reversed = True

sketch12 = body.newObject("Sketcher::SketchObject", "Sketch011")
sketch12.AttachmentSupport = (doc.getObject("XY_Plane"), [""])
sketch12.MapMode = "FlatFace"
sketch12.addGeometry(Part.Circle(Vector(-150.000107, -197.999969, 0), Vector(0, 0, 1), 1.9), False)
sketch12.addGeometry(Part.Circle(Vector(-150.000107, -119.999969, 0), Vector(0, 0, 1), 1.9), False)
sketch12.addGeometry(Part.Circle(Vector(-150.000107, -41.999969, 0), Vector(0, 0, 1), 1.9), False)
sketch12.addGeometry(Part.Circle(Vector(-276.000107, -71.999969, 0), Vector(0, 0, 1), 1.9), False)
sketch12.addGeometry(Part.Circle(Vector(-276.000107, -167.999969, 0), Vector(0, 0, 1), 1.9), False)
sketch12.addGeometry(Part.LineSegment(Vector(-264.800107, -208.799969, 0), Vector(-264.800107, -31.199969, 0)), False)
sketch12.addGeometry(Part.LineSegment(Vector(-264.800107, -31.199969, 0), Vector(-161.200107, -31.199969, 0)), False)
sketch12.addGeometry(Part.LineSegment(Vector(-161.200107, -31.199969, 0), Vector(-161.200107, -208.799969, 0)), False)
sketch12.addGeometry(Part.LineSegment(Vector(-161.200107, -208.799969, 0), Vector(-264.800107, -208.799969, 0)), False)
sketch12.addConstraint(Sketcher.Constraint("Coincident", 5, 2, 6, 1))
sketch12.addConstraint(Sketcher.Constraint("Coincident", 6, 2, 7, 1))
sketch12.addConstraint(Sketcher.Constraint("Coincident", 7, 2, 8, 1))
sketch12.addConstraint(Sketcher.Constraint("Coincident", 8, 2, 5, 1))
sketch12.addConstraint(Sketcher.Constraint("Vertical", 5))
sketch12.addConstraint(Sketcher.Constraint("Horizontal", 6))
sketch12.addConstraint(Sketcher.Constraint("Vertical", 7))
sketch12.addConstraint(Sketcher.Constraint("Horizontal", 8))
sketch12.addConstraint(Sketcher.Constraint("Equal", 0, 1))
sketch12.addConstraint(Sketcher.Constraint("Equal", 1, 2))
sketch12.addConstraint(Sketcher.Constraint("Equal", 2, 3))
sketch12.addConstraint(Sketcher.Constraint("Equal", 3, 4))
sketch12.addConstraint(Sketcher.Constraint("Vertical", 0, 3, 1, 3))
sketch12.addConstraint(Sketcher.Constraint("Vertical", 1, 3, 2, 3))
sketch12.addConstraint(Sketcher.Constraint("Vertical", 3, 3, 4, 3))
sketch12.addConstraint(Sketcher.Constraint("Diameter", 0, Q("3.8 mm")))
sketch12.addConstraint(Sketcher.Constraint("DistanceX", 6, 1, 6, 2, Q("103.6 mm")))
sketch12.addConstraint(Sketcher.Constraint("DistanceY", 5, 1, 5, 2, Q("177.6 mm")))
sketch12.addConstraint(Sketcher.Constraint("DistanceY", 0, 3, 1, 3, Q("78 mm")))
sketch12.addConstraint(Sketcher.Constraint("DistanceY", 1, 3, 2, 3, Q("78 mm")))
sketch12.addConstraint(Sketcher.Constraint("DistanceX", 3, 3, 2, 3, Q("126 mm")))
sketch12.addConstraint(Sketcher.Constraint("DistanceY", 3, 3, 2, 3, Q("30 mm")))
sketch12.addConstraint(Sketcher.Constraint("DistanceY", 4, 3, 3, 3, Q("96 mm")))
sketch12.addConstraint(Sketcher.Constraint("DistanceX", 3, 3, 5, 2, Q("11.2 mm")))
sketch12.addConstraint(Sketcher.Constraint("DistanceY", 3, 3, 5, 2, Q("40.8 mm")))
sketch12.addConstraint(Sketcher.Constraint("DistanceY", 0, 3, -1, 1, Q("197.999969 mm")))
sketch12.addConstraint(Sketcher.Constraint("DistanceX", 0, 3, -1, 1, Q("150.000107 mm")))
sketch12.setExpression("Constraints[15]", "Params.sketch12_diameter")
sketch12.setExpression("Constraints[16]", "Params.sketch12_width")
sketch12.setExpression("Constraints[17]", "Params.sketch12_height")
pocket11 = body.newObject("PartDesign::Pocket", "Pocket010")
pocket11.Profile = sketch12
pocket11.setExpression("Length", "Params.pocket11_length")
pocket11.Reversed = True

sketch13 = body.newObject("Sketcher::SketchObject", "Sketch012")
sketch13.AttachmentSupport = (doc.getObject("XY_Plane"), [""])
sketch13.MapMode = "FlatFace"
sketch13.addGeometry(Part.Circle(Vector(-276.000275, -85.999939, 0), Vector(0, 0, 1), 1.9), False)
sketch13.addGeometry(Part.Circle(Vector(-356.000275, -65.999939, 0), Vector(0, 0, 1), 1.9), False)
sketch13.addGeometry(Part.Circle(Vector(-276.000275, -153.999939, 0), Vector(0, 0, 1), 1.9), False)
sketch13.addGeometry(Part.Circle(Vector(-356.000275, -173.999939, 0), Vector(0, 0, 1), 1.9), False)
sketch13.addGeometry(Part.LineSegment(Vector(-344.800275, -173.799939, 0), Vector(-344.800275, -66.199939, 0)), False)
sketch13.addGeometry(Part.LineSegment(Vector(-344.800275, -66.199939, 0), Vector(-287.200275, -66.199939, 0)), False)
sketch13.addGeometry(Part.LineSegment(Vector(-287.200275, -66.199939, 0), Vector(-287.200275, -173.799939, 0)), False)
sketch13.addGeometry(Part.LineSegment(Vector(-287.200275, -173.799939, 0), Vector(-344.800275, -173.799939, 0)), False)
sketch13.addConstraint(Sketcher.Constraint("Coincident", 4, 2, 5, 1))
sketch13.addConstraint(Sketcher.Constraint("Coincident", 5, 2, 6, 1))
sketch13.addConstraint(Sketcher.Constraint("Coincident", 6, 2, 7, 1))
sketch13.addConstraint(Sketcher.Constraint("Coincident", 7, 2, 4, 1))
sketch13.addConstraint(Sketcher.Constraint("Vertical", 4))
sketch13.addConstraint(Sketcher.Constraint("Horizontal", 5))
sketch13.addConstraint(Sketcher.Constraint("Vertical", 6))
sketch13.addConstraint(Sketcher.Constraint("Horizontal", 7))
sketch13.addConstraint(Sketcher.Constraint("Equal", 0, 1))
sketch13.addConstraint(Sketcher.Constraint("Equal", 1, 2))
sketch13.addConstraint(Sketcher.Constraint("Equal", 2, 3))
sketch13.addConstraint(Sketcher.Constraint("Vertical", 0, 3, 2, 3))
sketch13.addConstraint(Sketcher.Constraint("Vertical", 1, 3, 3, 3))
sketch13.addConstraint(Sketcher.Constraint("Diameter", 0, Q("3.8 mm")))
sketch13.addConstraint(Sketcher.Constraint("DistanceX", 5, 1, 5, 2, Q("57.6 mm")))
sketch13.addConstraint(Sketcher.Constraint("DistanceY", 4, 1, 4, 2, Q("107.6 mm")))
sketch13.addConstraint(Sketcher.Constraint("DistanceX", 1, 3, 0, 3, Q("80 mm")))
sketch13.addConstraint(Sketcher.Constraint("DistanceY", 0, 3, 1, 3, Q("20 mm")))
sketch13.addConstraint(Sketcher.Constraint("DistanceY", 2, 3, 0, 3, Q("68 mm")))
sketch13.addConstraint(Sketcher.Constraint("DistanceY", 3, 3, 2, 3, Q("20 mm")))
sketch13.addConstraint(Sketcher.Constraint("DistanceX", 1, 3, 4, 2, Q("11.2 mm")))
sketch13.addConstraint(Sketcher.Constraint("DistanceY", 4, 2, 1, 3, Q("0.2 mm")))
sketch13.addConstraint(Sketcher.Constraint("DistanceY", 0, 3, -1, 1, Q("85.999939 mm")))
sketch13.addConstraint(Sketcher.Constraint("DistanceX", 0, 3, -1, 1, Q("276.000275 mm")))
sketch13.setExpression("Constraints[13]", "Params.sketch13_diameter")
sketch13.setExpression("Constraints[14]", "Params.sketch13_width")
sketch13.setExpression("Constraints[15]", "Params.sketch13_height")
pocket12 = body.newObject("PartDesign::Pocket", "Pocket011")
pocket12.Profile = sketch13
pocket12.setExpression("Length", "Params.pocket12_length")
pocket12.Reversed = True

doc.recompute()
